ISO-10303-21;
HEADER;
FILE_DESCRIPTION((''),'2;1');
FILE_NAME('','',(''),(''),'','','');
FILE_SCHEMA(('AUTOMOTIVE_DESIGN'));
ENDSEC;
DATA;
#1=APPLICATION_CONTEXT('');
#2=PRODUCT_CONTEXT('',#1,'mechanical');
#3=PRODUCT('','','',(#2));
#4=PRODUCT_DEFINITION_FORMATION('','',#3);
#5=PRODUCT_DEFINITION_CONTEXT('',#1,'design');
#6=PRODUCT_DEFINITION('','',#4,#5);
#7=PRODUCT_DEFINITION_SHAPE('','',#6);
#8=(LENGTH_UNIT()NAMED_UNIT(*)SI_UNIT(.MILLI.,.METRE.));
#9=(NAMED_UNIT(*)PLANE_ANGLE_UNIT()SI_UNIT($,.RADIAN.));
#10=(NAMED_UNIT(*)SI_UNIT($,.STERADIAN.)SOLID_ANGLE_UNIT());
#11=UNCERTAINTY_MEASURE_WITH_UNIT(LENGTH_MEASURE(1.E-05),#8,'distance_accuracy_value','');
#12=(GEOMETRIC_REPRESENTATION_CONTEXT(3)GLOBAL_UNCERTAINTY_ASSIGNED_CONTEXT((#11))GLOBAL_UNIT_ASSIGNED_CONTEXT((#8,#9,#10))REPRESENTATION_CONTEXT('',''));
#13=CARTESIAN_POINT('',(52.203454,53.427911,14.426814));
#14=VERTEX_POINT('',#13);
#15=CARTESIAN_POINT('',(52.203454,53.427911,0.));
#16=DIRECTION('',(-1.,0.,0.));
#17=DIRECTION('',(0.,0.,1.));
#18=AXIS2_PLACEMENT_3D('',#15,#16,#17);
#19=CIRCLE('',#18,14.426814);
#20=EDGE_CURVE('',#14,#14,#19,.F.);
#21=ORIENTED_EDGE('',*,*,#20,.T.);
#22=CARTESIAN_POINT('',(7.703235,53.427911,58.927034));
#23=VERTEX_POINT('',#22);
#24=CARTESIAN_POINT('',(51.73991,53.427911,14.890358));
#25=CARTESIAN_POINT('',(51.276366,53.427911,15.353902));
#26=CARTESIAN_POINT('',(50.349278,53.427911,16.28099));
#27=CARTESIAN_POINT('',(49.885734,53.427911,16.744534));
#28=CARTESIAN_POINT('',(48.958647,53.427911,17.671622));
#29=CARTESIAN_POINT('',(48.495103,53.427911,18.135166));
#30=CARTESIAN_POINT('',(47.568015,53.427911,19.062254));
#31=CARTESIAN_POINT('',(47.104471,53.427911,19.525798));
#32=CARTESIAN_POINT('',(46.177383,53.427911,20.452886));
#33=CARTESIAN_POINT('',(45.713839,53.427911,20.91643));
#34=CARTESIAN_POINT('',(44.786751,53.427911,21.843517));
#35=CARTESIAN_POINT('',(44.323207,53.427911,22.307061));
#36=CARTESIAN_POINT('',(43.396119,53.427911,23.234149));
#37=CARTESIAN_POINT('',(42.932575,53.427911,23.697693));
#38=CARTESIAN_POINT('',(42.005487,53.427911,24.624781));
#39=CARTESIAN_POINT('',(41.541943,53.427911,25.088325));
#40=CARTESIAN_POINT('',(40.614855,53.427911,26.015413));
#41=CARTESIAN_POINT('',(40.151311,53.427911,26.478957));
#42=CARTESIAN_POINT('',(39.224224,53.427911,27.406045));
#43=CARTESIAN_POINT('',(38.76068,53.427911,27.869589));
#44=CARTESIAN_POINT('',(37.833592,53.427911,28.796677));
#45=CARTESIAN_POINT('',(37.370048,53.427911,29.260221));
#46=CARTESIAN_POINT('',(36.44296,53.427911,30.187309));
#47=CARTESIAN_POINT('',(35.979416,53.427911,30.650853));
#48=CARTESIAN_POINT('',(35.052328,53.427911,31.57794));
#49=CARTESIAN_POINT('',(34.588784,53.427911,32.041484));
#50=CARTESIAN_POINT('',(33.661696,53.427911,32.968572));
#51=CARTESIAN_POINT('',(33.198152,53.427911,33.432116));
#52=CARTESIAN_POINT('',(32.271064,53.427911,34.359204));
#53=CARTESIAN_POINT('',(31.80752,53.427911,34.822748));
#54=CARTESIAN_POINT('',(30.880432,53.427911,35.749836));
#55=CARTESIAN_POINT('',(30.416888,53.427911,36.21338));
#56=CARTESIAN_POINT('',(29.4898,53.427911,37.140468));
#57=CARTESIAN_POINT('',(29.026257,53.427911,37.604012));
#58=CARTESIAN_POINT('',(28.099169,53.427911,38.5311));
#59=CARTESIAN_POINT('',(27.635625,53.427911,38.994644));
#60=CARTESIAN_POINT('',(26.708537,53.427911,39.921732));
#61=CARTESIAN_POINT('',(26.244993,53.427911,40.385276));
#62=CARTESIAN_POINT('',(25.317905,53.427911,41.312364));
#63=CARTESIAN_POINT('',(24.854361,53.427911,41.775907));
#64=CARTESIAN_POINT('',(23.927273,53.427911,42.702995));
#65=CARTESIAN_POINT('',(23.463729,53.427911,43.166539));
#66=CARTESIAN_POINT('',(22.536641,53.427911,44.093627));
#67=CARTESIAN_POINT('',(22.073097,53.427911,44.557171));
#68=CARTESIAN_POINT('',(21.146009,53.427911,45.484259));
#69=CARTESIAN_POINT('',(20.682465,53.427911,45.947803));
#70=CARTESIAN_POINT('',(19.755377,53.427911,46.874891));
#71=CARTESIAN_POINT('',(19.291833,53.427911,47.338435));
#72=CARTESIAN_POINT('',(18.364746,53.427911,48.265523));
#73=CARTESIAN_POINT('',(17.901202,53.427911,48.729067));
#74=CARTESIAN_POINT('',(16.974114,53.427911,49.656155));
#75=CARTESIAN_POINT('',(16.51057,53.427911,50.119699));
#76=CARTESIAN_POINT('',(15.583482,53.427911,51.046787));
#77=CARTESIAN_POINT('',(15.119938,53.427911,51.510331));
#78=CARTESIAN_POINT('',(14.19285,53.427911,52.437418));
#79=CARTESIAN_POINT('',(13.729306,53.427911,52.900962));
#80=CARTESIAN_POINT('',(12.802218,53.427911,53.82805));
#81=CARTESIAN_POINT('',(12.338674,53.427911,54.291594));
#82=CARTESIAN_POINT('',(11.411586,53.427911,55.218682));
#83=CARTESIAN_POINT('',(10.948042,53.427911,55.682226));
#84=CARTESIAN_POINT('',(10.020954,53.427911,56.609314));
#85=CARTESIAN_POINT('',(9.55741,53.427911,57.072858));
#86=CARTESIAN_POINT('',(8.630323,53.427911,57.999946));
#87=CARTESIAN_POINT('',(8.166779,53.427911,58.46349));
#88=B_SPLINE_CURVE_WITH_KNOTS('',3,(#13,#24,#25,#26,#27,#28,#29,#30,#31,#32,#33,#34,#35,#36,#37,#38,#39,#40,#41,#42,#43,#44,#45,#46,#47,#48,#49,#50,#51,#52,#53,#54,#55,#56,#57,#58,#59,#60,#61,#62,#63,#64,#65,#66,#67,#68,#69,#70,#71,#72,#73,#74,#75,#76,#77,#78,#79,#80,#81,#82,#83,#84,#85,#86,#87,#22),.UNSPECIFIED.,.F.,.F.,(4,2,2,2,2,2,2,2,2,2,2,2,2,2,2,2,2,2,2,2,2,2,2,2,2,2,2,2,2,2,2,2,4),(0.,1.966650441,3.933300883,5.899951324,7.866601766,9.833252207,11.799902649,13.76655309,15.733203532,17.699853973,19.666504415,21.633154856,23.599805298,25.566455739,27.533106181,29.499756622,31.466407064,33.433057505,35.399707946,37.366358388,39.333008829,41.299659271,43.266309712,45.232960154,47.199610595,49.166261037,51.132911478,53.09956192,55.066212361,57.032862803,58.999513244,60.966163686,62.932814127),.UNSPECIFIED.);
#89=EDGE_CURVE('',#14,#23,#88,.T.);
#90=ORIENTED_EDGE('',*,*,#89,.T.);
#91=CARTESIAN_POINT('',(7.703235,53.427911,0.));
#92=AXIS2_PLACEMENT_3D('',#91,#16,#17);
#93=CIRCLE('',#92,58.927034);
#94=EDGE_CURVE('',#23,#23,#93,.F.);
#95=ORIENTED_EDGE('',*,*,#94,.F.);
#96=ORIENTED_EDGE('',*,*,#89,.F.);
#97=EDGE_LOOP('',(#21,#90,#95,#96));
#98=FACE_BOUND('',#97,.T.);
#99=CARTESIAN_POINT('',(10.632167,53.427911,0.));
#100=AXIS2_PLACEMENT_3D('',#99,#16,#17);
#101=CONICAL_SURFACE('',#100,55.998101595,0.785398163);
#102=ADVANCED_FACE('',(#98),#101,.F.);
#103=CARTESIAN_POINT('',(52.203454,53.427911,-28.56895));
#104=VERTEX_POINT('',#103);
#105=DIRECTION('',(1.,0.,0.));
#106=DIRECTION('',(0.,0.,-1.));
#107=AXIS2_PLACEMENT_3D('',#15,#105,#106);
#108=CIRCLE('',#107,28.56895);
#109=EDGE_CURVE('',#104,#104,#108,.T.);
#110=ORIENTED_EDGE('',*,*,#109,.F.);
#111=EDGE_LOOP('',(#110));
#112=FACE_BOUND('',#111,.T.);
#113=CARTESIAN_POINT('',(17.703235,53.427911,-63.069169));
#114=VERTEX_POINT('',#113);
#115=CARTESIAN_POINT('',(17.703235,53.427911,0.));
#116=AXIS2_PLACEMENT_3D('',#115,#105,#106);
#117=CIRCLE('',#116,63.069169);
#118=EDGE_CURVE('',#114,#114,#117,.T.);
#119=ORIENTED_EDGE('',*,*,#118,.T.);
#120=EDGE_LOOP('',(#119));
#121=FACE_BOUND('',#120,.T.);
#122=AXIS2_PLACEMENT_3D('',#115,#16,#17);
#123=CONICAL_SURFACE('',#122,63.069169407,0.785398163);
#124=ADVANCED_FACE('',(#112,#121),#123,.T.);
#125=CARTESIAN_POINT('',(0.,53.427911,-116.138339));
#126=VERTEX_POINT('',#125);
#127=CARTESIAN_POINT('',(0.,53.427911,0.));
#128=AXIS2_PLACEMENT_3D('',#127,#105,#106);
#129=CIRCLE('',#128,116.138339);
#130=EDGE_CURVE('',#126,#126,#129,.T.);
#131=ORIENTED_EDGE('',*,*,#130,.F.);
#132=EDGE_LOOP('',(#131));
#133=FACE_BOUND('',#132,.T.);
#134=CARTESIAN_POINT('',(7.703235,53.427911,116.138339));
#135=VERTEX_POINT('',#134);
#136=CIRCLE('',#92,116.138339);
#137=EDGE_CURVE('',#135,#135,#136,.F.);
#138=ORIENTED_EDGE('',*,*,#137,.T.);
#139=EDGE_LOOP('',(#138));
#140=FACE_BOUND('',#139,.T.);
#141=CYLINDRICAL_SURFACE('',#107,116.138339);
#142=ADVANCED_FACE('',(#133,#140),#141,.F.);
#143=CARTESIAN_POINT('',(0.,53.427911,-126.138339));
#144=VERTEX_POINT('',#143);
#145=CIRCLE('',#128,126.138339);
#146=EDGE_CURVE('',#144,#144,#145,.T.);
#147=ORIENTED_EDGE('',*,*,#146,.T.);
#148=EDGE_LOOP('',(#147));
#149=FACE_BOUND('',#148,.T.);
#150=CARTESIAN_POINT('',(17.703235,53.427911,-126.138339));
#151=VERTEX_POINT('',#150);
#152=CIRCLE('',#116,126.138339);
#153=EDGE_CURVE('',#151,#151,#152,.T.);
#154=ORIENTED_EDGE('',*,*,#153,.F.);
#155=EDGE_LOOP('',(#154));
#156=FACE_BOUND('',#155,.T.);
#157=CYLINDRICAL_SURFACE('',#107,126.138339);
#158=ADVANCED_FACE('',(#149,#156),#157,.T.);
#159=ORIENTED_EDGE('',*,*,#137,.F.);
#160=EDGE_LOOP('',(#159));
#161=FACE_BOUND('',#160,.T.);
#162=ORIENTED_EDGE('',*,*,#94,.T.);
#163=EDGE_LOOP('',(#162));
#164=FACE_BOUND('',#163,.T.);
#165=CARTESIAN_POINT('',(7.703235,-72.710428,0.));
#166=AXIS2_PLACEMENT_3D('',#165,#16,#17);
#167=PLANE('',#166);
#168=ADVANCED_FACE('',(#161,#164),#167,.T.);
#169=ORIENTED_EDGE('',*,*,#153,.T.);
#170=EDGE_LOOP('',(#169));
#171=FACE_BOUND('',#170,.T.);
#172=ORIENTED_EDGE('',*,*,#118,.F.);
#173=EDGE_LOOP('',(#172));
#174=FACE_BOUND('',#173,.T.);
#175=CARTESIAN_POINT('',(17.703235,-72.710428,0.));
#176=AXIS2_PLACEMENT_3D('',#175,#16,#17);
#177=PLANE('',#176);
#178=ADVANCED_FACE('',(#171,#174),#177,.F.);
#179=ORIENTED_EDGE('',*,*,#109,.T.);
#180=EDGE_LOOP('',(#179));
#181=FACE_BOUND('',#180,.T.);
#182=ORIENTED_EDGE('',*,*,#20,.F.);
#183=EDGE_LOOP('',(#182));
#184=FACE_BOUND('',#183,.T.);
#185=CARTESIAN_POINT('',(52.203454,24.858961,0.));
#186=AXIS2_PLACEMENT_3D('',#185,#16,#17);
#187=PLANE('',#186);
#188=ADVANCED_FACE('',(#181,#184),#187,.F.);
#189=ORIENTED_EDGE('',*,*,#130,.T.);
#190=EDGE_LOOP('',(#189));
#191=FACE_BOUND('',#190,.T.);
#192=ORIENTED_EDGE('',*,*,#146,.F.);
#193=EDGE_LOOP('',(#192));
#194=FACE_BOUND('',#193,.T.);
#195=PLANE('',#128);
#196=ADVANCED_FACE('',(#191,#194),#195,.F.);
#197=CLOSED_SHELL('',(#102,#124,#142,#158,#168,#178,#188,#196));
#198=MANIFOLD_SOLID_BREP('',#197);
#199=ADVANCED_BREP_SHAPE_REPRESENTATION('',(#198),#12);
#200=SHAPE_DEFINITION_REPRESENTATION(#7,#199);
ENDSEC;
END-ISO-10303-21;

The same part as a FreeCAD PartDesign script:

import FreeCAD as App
import Part
import Sketcher
Q = App.Units.Quantity


def faces_at(feature, points):
    """Names of the faces that lie closest to the given points."""
    faces = feature.Shape.Faces
    near = lambda p: min(range(len(faces)), key=lambda i: faces[i].distToShape(Part.Vertex(*p))[0])
    return sorted({f"Face{near(p) + 1}" for p in points})


def add_polygon(sketch, points):
    """Adds a closed chain of lines whose ends are joined by coincident constraints."""
    first, n = sketch.GeometryCount, len(points)
    for a, b in zip(points, points[1:] + points[:1]):
        sketch.addGeometry(Part.LineSegment(App.Vector(*a, 0), App.Vector(*b, 0)), False)
    for i in range(n):
        sketch.addConstraint(Sketcher.Constraint("Coincident", first + i, 2, first + (i + 1) % n, 1))

doc = App.newDocument("Part")
body = doc.addObject("PartDesign::Body", "Body")

# Sketch on XY plane
sketch1 = doc.addObject("Sketcher::SketchObject", "Sketch")
body.addObject(sketch1)
sketch1.AttachmentSupport = (doc.XY_Plane, [""])
sketch1.MapMode = "FlatFace"
add_polygon(sketch1, [(0, 53), (0, -73), (18, -73), (18, -10), (52, 25), (52, 53)])  # lines 0-5
sketch1.addGeometry(Part.LineSegment(App.Vector(52, 53, 0), App.Vector(0, 53, 0)), True)  # axis
sketch1.addConstraint(Sketcher.Constraint("Vertical", 0))
sketch1.addConstraint(Sketcher.Constraint("Horizontal", 1))
sketch1.addConstraint(Sketcher.Constraint("Vertical", 2))
sketch1.addConstraint(Sketcher.Constraint("Vertical", 4))
sketch1.addConstraint(Sketcher.Constraint("Horizontal", 5))
sketch1.addConstraint(Sketcher.Constraint("Horizontal", 6))
sketch1.addConstraint(Sketcher.Constraint("Coincident", 6, 1, 4, 2))
sketch1.addConstraint(Sketcher.Constraint("PointOnObject", 0, 2, -2))
sketch1.addConstraint(Sketcher.Constraint("PointOnObject", 6, 2, -2))
sketch1.addConstraint(Sketcher.Constraint("Angle", 3, Q("45 deg")))
sketch1.addConstraint(Sketcher.Constraint("DistanceY", 0, 2, 0, 1, Q("126.138339 mm")))
sketch1.addConstraint(Sketcher.Constraint("DistanceY", 2, 1, 2, 2, Q("63.069169 mm")))
sketch1.addConstraint(Sketcher.Constraint("DistanceY", 4, 1, 4, 2, Q("28.56895 mm")))
sketch1.addConstraint(Sketcher.Constraint("DistanceX", 1, 1, 1, 2, Q("17.703235 mm")))
sketch1.addConstraint(Sketcher.Constraint("DistanceY", 2, 2, -1, 1, Q("9.641258 mm")))
revolution = doc.addObject("PartDesign::Revolution", "Revolution")
body.addObject(revolution)
revolution.Profile = sketch1
revolution.ReferenceAxis = (sketch1, ["Axis0"])
revolution.Angle = 360
doc.recompute()

thickness = doc.addObject("PartDesign::Thickness", "Thickness")
body.addObject(thickness)
thickness.Base = (revolution, faces_at(revolution, [(52.203, 53.428, 0), (0, 53.428, 0)]))
thickness.Value = 10
thickness.Reversed = True
thickness.Join = "Intersection"

doc.recompute()
